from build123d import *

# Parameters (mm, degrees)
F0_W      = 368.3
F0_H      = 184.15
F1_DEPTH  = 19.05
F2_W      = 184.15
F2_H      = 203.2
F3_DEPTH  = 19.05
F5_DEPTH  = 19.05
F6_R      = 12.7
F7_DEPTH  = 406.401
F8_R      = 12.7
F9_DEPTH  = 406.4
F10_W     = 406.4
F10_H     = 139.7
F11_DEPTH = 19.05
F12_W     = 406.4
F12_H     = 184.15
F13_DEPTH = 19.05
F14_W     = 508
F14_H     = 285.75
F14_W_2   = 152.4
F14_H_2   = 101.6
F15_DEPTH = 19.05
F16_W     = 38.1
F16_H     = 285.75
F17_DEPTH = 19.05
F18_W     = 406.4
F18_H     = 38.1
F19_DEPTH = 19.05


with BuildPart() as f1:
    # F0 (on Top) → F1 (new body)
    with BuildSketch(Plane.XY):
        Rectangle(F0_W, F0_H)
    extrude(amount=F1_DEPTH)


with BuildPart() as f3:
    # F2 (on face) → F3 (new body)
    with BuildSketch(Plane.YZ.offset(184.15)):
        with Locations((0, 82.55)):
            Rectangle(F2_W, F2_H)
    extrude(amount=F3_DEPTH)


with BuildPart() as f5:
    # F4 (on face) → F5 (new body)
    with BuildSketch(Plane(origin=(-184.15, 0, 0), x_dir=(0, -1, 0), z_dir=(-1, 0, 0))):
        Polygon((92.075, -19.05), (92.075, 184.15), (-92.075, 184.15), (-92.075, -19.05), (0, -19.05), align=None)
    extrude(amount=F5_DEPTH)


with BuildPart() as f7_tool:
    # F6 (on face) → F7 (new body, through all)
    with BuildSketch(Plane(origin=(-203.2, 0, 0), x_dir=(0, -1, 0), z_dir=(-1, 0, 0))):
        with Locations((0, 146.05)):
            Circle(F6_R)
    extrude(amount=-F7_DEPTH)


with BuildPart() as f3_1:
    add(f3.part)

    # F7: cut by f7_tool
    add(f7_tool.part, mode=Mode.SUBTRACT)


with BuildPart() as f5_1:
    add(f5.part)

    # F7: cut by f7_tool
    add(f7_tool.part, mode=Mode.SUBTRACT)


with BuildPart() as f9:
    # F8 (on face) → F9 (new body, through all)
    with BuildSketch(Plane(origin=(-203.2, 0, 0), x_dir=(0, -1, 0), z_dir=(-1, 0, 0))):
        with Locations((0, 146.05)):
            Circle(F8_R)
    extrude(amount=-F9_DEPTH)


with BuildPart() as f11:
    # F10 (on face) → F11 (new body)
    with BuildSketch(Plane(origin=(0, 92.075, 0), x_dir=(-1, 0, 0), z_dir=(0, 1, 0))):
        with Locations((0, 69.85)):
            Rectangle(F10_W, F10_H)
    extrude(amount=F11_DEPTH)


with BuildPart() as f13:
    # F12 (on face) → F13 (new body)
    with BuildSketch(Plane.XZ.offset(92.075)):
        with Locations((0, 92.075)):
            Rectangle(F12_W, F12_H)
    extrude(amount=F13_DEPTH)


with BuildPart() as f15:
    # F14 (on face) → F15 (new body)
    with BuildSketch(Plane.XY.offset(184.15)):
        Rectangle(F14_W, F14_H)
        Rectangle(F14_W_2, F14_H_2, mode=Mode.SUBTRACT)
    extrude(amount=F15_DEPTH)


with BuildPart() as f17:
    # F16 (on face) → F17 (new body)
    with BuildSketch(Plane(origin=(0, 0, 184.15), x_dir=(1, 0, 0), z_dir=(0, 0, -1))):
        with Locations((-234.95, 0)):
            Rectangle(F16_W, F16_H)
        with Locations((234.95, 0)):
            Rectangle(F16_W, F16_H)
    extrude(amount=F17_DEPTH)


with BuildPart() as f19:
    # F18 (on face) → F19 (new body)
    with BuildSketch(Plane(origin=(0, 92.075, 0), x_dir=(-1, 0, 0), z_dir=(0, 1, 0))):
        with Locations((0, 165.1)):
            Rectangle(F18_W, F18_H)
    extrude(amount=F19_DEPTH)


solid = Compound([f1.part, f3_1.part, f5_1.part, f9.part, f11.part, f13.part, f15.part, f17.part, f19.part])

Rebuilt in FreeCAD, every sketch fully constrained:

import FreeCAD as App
import Part
import Sketcher
from FreeCAD import Vector
Q = App.Units.Quantity


def add_polygon(sketch, points):
    """Adds a closed chain of lines whose ends are joined by coincident constraints."""
    first, n = sketch.GeometryCount, len(points)
    for a, b in zip(points, points[1:] + points[:1]):
        sketch.addGeometry(Part.LineSegment(App.Vector(*a, 0), App.Vector(*b, 0)), False)
    for i in range(n):
        sketch.addConstraint(Sketcher.Constraint("Coincident", first + i, 2, first + (i + 1) % n, 1))

doc = App.newDocument("Part")
params = doc.addObject("Spreadsheet::Sheet", "Params")
for row, (alias, value) in enumerate([
    ("sketch1_width", "14.5 in"),
    ("sketch1_height", "7.25 in"),
    ("pad1_length", "0.75 in"),
    ("sketch2_height", "8 in"),
    ("sketch2_width", "7.25 in"),
    ("pad2_length", "0.75 in"),
    ("sketch3_height", "8 in"),
    ("sketch3_width", "7.25 in"),
    ("pad3_length", "0.75 in"),
    ("sketch4_diameter", "1 in"),
    ("pad4_length", "406.401 mm"),
    ("sketch5_diameter", "1 in"),
    ("pad5_length", "16 in"),
    ("sketch6_width", "16 in"),
    ("sketch6_height", "5.5 in"),
    ("pad6_length", "0.75 in"),
    ("sketch7_width", "16 in"),
    ("sketch7_height", "7.25 in"),
    ("pad7_length", "0.75 in"),
    ("sketch8_width", "20 in"),
    ("sketch8_width2", "6 in"),
    ("sketch8_height", "4 in"),
    ("sketch8_height2", "11.25 in"),
    ("pad8_length", "0.75 in"),
    ("sketch9_width", "1.5 in"),
    ("sketch9_height", "11.25 in"),
    ("pad9_length", "0.75 in"),
    ("sketch10_width", "16 in"),
    ("sketch10_height", "1.5 in"),
    ("pad10_length", "0.75 in"),
], start=1):
    params.set(f"A{row}", alias)
    params.set(f"B{row}", "=" + value)
    params.setAlias(f"B{row}", alias)

body = doc.addObject("PartDesign::Body", "Body")

sketch1 = body.newObject("Sketcher::SketchObject", "Sketch")
sketch1.AttachmentSupport = (doc.getObject("XY_Plane"), [""])
sketch1.MapMode = "FlatFace"
add_polygon(sketch1, [(-184, 92), (-184, -92), (184, -92), (184, 92)])
sketch1.addConstraint(Sketcher.Constraint("Vertical", 0))
sketch1.addConstraint(Sketcher.Constraint("Horizontal", 1))
sketch1.addConstraint(Sketcher.Constraint("Vertical", 2))
sketch1.addConstraint(Sketcher.Constraint("Horizontal", 3))
sketch1.addConstraint(Sketcher.Constraint("Symmetric", 0, 2, 2, 2, -1, 1))
sketch1.addConstraint(Sketcher.Constraint("DistanceX", 1, 1, 1, 2, Q("14.5 in")))
sketch1.addConstraint(Sketcher.Constraint("DistanceY", 0, 2, 0, 1, Q("7.25 in")))
sketch1.setExpression("Constraints[9]", "Params.sketch1_width")
sketch1.setExpression("Constraints[10]", "Params.sketch1_height")
pad1 = body.newObject("PartDesign::Pad", "Pad")
pad1.Profile = sketch1
pad1.setExpression("Length", "Params.pad1_length")
body2 = doc.addObject("PartDesign::Body", "Body001")

sketch2 = body2.newObject("Sketcher::SketchObject", "Sketch001")
sketch2.AttachmentSupport = (doc.getObject("YZ_Plane001"), [""])
sketch2.MapMode = "FlatFace"
sketch2.AttachmentOffset = App.Placement(Vector(0, 0, 7.25 * 25.4), App.Rotation())
add_polygon(sketch2, [(-92, 184), (-92, -19), (92, -19), (92, 184)])
sketch2.addConstraint(Sketcher.Constraint("Vertical", 0))
sketch2.addConstraint(Sketcher.Constraint("Horizontal", 1))
sketch2.addConstraint(Sketcher.Constraint("Vertical", 2))
sketch2.addConstraint(Sketcher.Constraint("Horizontal", 3))
sketch2.addConstraint(Sketcher.Constraint("DistanceY", 0, 2, 0, 1, Q("8 in")))
sketch2.addConstraint(Sketcher.Constraint("DistanceX", 1, 1, 1, 2, Q("7.25 in")))
sketch2.addConstraint(Sketcher.Constraint("DistanceY", 0, 2, -1, 1, Q("0.75 in")))
sketch2.addConstraint(Sketcher.Constraint("DistanceX", 0, 2, -1, 1, Q("3.625 in")))
sketch2.setExpression("Constraints[8]", "Params.sketch2_height")
sketch2.setExpression("Constraints[9]", "Params.sketch2_width")
pad2 = body2.newObject("PartDesign::Pad", "Pad001")
pad2.Profile = sketch2
pad2.setExpression("Length", "Params.pad2_length")
body3 = doc.addObject("PartDesign::Body", "Body002")

sketch3 = body3.newObject("Sketcher::SketchObject", "Sketch002")
sketch3.AttachmentSupport = (doc.getObject("YZ_Plane002"), [""])
sketch3.MapMode = "FlatFace"
sketch3.AttachmentOffset = App.Placement(Vector(0, 0, -7.25 * 25.4), App.Rotation())
add_polygon(sketch3, [(-92, -19), (-92, 184), (92, 184), (92, -19)])
sketch3.addConstraint(Sketcher.Constraint("Vertical", 0))
sketch3.addConstraint(Sketcher.Constraint("Horizontal", 1))
sketch3.addConstraint(Sketcher.Constraint("Vertical", 2))
sketch3.addConstraint(Sketcher.Constraint("Horizontal", 3))
sketch3.addConstraint(Sketcher.Constraint("DistanceY", 0, 1, 0, 2, Q("8 in")))
sketch3.addConstraint(Sketcher.Constraint("DistanceX", 1, 1, 1, 2, Q("7.25 in")))
sketch3.addConstraint(Sketcher.Constraint("DistanceY", -1, 1, 0, 2, Q("7.25 in")))
sketch3.addConstraint(Sketcher.Constraint("DistanceX", 0, 2, -1, 1, Q("3.625 in")))
sketch3.setExpression("Constraints[8]", "Params.sketch3_height")
sketch3.setExpression("Constraints[9]", "Params.sketch3_width")
pad3 = body3.newObject("PartDesign::Pad", "Pad002")
pad3.Profile = sketch3
pad3.setExpression("Length", "Params.pad3_length")
pad3.Reversed = True
body4 = doc.addObject("PartDesign::Body", "Body003")

sketch4 = body4.newObject("Sketcher::SketchObject", "Sketch003")
sketch4.AttachmentSupport = (doc.getObject("YZ_Plane003"), [""])
sketch4.MapMode = "FlatFace"
sketch4.AttachmentOffset = App.Placement(Vector(0, 0, -8 * 25.4), App.Rotation())
sketch4.addGeometry(Part.Circle(Vector(0, 146, 0), Vector(0, 0, 1), 13), False)
sketch4.addConstraint(Sketcher.Constraint("PointOnObject", 0, 3, -2))
sketch4.addConstraint(Sketcher.Constraint("Diameter", 0, Q("1 in")))
sketch4.addConstraint(Sketcher.Constraint("DistanceY", -1, 1, 0, 3, Q("5.75 in")))
sketch4.setExpression("Constraints[1]", "Params.sketch4_diameter")
pad4 = body4.newObject("PartDesign::Pad", "Pad003")
pad4.Profile = sketch4
pad4.setExpression("Length", "Params.pad4_length")
doc.recompute()

body5 = doc.addObject("PartDesign::Body", "Body004")
body5.BaseFeature = body4
boolean = body2.newObject("PartDesign::Boolean", "Boolean")
boolean.Type = "Cut"
boolean.addObjects([body5])
doc.recompute()

boolean2 = body3.newObject("PartDesign::Boolean", "Boolean001")
boolean2.Type = "Cut"
boolean2.addObjects([body4])
body6 = doc.addObject("PartDesign::Body", "Body005")

sketch5 = body6.newObject("Sketcher::SketchObject", "Sketch004")
sketch5.AttachmentSupport = (doc.getObject("YZ_Plane005"), [""])
sketch5.MapMode = "FlatFace"
sketch5.AttachmentOffset = App.Placement(Vector(0, 0, -8 * 25.4), App.Rotation())
sketch5.addGeometry(Part.Circle(Vector(0, 146, 0), Vector(0, 0, 1), 13), False)
sketch5.addConstraint(Sketcher.Constraint("PointOnObject", 0, 3, -2))
sketch5.addConstraint(Sketcher.Constraint("Diameter", 0, Q("1 in")))
sketch5.addConstraint(Sketcher.Constraint("DistanceY", -1, 1, 0, 3, Q("5.75 in")))
sketch5.setExpression("Constraints[1]", "Params.sketch5_diameter")
pad5 = body6.newObject("PartDesign::Pad", "Pad004")
pad5.Profile = sketch5
pad5.setExpression("Length", "Params.pad5_length")
body7 = doc.addObject("PartDesign::Body", "Body006")

sketch6 = body7.newObject("Sketcher::SketchObject", "Sketch005")
sketch6.AttachmentSupport = (doc.getObject("XZ_Plane006"), [""])
sketch6.MapMode = "FlatFace"
sketch6.AttachmentOffset = App.Placement(Vector(0, 0, -3.625 * 25.4), App.Rotation())
add_polygon(sketch6, [(203, 140), (203, 0), (-203, 0), (-203, 140)])
sketch6.addConstraint(Sketcher.Constraint("Vertical", 0))
sketch6.addConstraint(Sketcher.Constraint("Horizontal", 1))
sketch6.addConstraint(Sketcher.Constraint("Vertical", 2))
sketch6.addConstraint(Sketcher.Constraint("Horizontal", 3))
sketch6.addConstraint(Sketcher.Constraint("Symmetric", 0, 2, 1, 2, -1, 1))
sketch6.addConstraint(Sketcher.Constraint("DistanceX", 1, 2, 1, 1, Q("16 in")))
sketch6.addConstraint(Sketcher.Constraint("DistanceY", 0, 2, 0, 1, Q("5.5 in")))
sketch6.setExpression("Constraints[9]", "Params.sketch6_width")
sketch6.setExpression("Constraints[10]", "Params.sketch6_height")
pad6 = body7.newObject("PartDesign::Pad", "Pad005")
pad6.Profile = sketch6
pad6.setExpression("Length", "Params.pad6_length")
pad6.Reversed = True
body8 = doc.addObject("PartDesign::Body", "Body007")

sketch7 = body8.newObject("Sketcher::SketchObject", "Sketch006")
sketch7.AttachmentSupport = (doc.getObject("XZ_Plane007"), [""])
sketch7.MapMode = "FlatFace"
sketch7.AttachmentOffset = App.Placement(Vector(0, 0, 3.625 * 25.4), App.Rotation())
add_polygon(sketch7, [(-203, 184), (-203, 0), (203, 0), (203, 184)])
sketch7.addConstraint(Sketcher.Constraint("Vertical", 0))
sketch7.addConstraint(Sketcher.Constraint("Horizontal", 1))
sketch7.addConstraint(Sketcher.Constraint("Vertical", 2))
sketch7.addConstraint(Sketcher.Constraint("Horizontal", 3))
sketch7.addConstraint(Sketcher.Constraint("Symmetric", 0, 2, 1, 2, -1, 1))
sketch7.addConstraint(Sketcher.Constraint("DistanceX", 1, 1, 1, 2, Q("16 in")))
sketch7.addConstraint(Sketcher.Constraint("DistanceY", 0, 2, 0, 1, Q("7.25 in")))
sketch7.setExpression("Constraints[9]", "Params.sketch7_width")
sketch7.setExpression("Constraints[10]", "Params.sketch7_height")
pad7 = body8.newObject("PartDesign::Pad", "Pad006")
pad7.Profile = sketch7
pad7.setExpression("Length", "Params.pad7_length")
body9 = doc.addObject("PartDesign::Body", "Body008")

sketch8 = body9.newObject("Sketcher::SketchObject", "Sketch007")
sketch8.AttachmentSupport = (doc.getObject("XY_Plane008"), [""])
sketch8.MapMode = "FlatFace"
sketch8.AttachmentOffset = App.Placement(Vector(0, 0, 7.25 * 25.4), App.Rotation())
add_polygon(sketch8, [(-254, 143), (-254, -143), (254, -143), (254, 143)])
add_polygon(sketch8, [(76, -51), (-76, -51), (-76, 51), (76, 51)])
sketch8.addConstraint(Sketcher.Constraint("Vertical", 0))
sketch8.addConstraint(Sketcher.Constraint("Horizontal", 1))
sketch8.addConstraint(Sketcher.Constraint("Vertical", 2))
sketch8.addConstraint(Sketcher.Constraint("Horizontal", 3))
sketch8.addConstraint(Sketcher.Constraint("Horizontal", 4))
sketch8.addConstraint(Sketcher.Constraint("Vertical", 5))
sketch8.addConstraint(Sketcher.Constraint("Horizontal", 6))
sketch8.addConstraint(Sketcher.Constraint("Vertical", 7))
sketch8.addConstraint(Sketcher.Constraint("Symmetric", 0, 2, 2, 2, -1, 1))
sketch8.addConstraint(Sketcher.Constraint("Symmetric", 4, 2, 6, 2, -1, 1))
sketch8.addConstraint(Sketcher.Constraint("DistanceX", 1, 1, 1, 2, Q("20 in")))
sketch8.addConstraint(Sketcher.Constraint("DistanceX", 4, 2, 4, 1, Q("6 in")))
sketch8.addConstraint(Sketcher.Constraint("DistanceY", 5, 1, 5, 2, Q("4 in")))
sketch8.addConstraint(Sketcher.Constraint("DistanceY", 0, 2, 0, 1, Q("11.25 in")))
sketch8.setExpression("Constraints[18]", "Params.sketch8_width")
sketch8.setExpression("Constraints[19]", "Params.sketch8_width2")
sketch8.setExpression("Constraints[20]", "Params.sketch8_height")
sketch8.setExpression("Constraints[21]", "Params.sketch8_height2")
pad8 = body9.newObject("PartDesign::Pad", "Pad007")
pad8.Profile = sketch8
pad8.setExpression("Length", "Params.pad8_length")
body10 = doc.addObject("PartDesign::Body", "Body009")
body10.AllowCompound = True

sketch9 = body10.newObject("Sketcher::SketchObject", "Sketch008")
sketch9.AttachmentSupport = (doc.getObject("XY_Plane009"), [""])
sketch9.MapMode = "FlatFace"
sketch9.AttachmentOffset = App.Placement(Vector(0, 0, 7.25 * 25.4), App.Rotation())
add_polygon(sketch9, [(-254, -143), (-254, 143), (-216, 143), (-216, -143)])
add_polygon(sketch9, [(216, -143), (216, 143), (254, 143), (254, -143)])
sketch9.addConstraint(Sketcher.Constraint("Vertical", 0))
sketch9.addConstraint(Sketcher.Constraint("Horizontal", 1))
sketch9.addConstraint(Sketcher.Constraint("Vertical", 2))
sketch9.addConstraint(Sketcher.Constraint("Horizontal", 3))
sketch9.addConstraint(Sketcher.Constraint("Vertical", 4))
sketch9.addConstraint(Sketcher.Constraint("Horizontal", 5))
sketch9.addConstraint(Sketcher.Constraint("Vertical", 6))
sketch9.addConstraint(Sketcher.Constraint("Horizontal", 7))
sketch9.addConstraint(Sketcher.Constraint("Symmetric", 2, 2, 4, 2, -1, 1))
sketch9.addConstraint(Sketcher.Constraint("Symmetric", 0, 2, 6, 2, -1, 1))
sketch9.addConstraint(Sketcher.Constraint("Horizontal", 1, 2, 4, 2))
sketch9.addConstraint(Sketcher.Constraint("DistanceX", 1, 1, 1, 2, Q("1.5 in")))
sketch9.addConstraint(Sketcher.Constraint("DistanceX", 0, 2, -1, 1, Q("10 in")))
sketch9.addConstraint(Sketcher.Constraint("DistanceY", 0, 1, 0, 2, Q("11.25 in")))
sketch9.setExpression("Constraints[19]", "Params.sketch9_width")
sketch9.setExpression("Constraints[21]", "Params.sketch9_height")
pad9 = body10.newObject("PartDesign::Pad", "Pad008")
pad9.Profile = sketch9
pad9.setExpression("Length", "Params.pad9_length")
pad9.Reversed = True
body11 = doc.addObject("PartDesign::Body", "Body010")

sketch10 = body11.newObject("Sketcher::SketchObject", "Sketch009")
sketch10.AttachmentSupport = (doc.getObject("XZ_Plane010"), [""])
sketch10.MapMode = "FlatFace"
sketch10.AttachmentOffset = App.Placement(Vector(0, 0, -3.625 * 25.4), App.Rotation())
add_polygon(sketch10, [(203, 184), (203, 146), (-203, 146), (-203, 184)])
sketch10.addConstraint(Sketcher.Constraint("Vertical", 0))
sketch10.addConstraint(Sketcher.Constraint("Horizontal", 1))
sketch10.addConstraint(Sketcher.Constraint("Vertical", 2))
sketch10.addConstraint(Sketcher.Constraint("Horizontal", 3))
sketch10.addConstraint(Sketcher.Constraint("DistanceX", 1, 2, 1, 1, Q("16 in")))
sketch10.addConstraint(Sketcher.Constraint("DistanceY", 0, 2, 0, 1, Q("1.5 in")))
sketch10.addConstraint(Sketcher.Constraint("DistanceX", -1, 1, 0, 2, Q("8 in")))
sketch10.addConstraint(Sketcher.Constraint("DistanceY", -1, 1, 0, 2, Q("5.75 in")))
sketch10.setExpression("Constraints[8]", "Params.sketch10_width")
sketch10.setExpression("Constraints[9]", "Params.sketch10_height")
pad10 = body11.newObject("PartDesign::Pad", "Pad009")
pad10.Profile = sketch10
pad10.setExpression("Length", "Params.pad10_length")
pad10.Reversed = True

doc.recompute()
